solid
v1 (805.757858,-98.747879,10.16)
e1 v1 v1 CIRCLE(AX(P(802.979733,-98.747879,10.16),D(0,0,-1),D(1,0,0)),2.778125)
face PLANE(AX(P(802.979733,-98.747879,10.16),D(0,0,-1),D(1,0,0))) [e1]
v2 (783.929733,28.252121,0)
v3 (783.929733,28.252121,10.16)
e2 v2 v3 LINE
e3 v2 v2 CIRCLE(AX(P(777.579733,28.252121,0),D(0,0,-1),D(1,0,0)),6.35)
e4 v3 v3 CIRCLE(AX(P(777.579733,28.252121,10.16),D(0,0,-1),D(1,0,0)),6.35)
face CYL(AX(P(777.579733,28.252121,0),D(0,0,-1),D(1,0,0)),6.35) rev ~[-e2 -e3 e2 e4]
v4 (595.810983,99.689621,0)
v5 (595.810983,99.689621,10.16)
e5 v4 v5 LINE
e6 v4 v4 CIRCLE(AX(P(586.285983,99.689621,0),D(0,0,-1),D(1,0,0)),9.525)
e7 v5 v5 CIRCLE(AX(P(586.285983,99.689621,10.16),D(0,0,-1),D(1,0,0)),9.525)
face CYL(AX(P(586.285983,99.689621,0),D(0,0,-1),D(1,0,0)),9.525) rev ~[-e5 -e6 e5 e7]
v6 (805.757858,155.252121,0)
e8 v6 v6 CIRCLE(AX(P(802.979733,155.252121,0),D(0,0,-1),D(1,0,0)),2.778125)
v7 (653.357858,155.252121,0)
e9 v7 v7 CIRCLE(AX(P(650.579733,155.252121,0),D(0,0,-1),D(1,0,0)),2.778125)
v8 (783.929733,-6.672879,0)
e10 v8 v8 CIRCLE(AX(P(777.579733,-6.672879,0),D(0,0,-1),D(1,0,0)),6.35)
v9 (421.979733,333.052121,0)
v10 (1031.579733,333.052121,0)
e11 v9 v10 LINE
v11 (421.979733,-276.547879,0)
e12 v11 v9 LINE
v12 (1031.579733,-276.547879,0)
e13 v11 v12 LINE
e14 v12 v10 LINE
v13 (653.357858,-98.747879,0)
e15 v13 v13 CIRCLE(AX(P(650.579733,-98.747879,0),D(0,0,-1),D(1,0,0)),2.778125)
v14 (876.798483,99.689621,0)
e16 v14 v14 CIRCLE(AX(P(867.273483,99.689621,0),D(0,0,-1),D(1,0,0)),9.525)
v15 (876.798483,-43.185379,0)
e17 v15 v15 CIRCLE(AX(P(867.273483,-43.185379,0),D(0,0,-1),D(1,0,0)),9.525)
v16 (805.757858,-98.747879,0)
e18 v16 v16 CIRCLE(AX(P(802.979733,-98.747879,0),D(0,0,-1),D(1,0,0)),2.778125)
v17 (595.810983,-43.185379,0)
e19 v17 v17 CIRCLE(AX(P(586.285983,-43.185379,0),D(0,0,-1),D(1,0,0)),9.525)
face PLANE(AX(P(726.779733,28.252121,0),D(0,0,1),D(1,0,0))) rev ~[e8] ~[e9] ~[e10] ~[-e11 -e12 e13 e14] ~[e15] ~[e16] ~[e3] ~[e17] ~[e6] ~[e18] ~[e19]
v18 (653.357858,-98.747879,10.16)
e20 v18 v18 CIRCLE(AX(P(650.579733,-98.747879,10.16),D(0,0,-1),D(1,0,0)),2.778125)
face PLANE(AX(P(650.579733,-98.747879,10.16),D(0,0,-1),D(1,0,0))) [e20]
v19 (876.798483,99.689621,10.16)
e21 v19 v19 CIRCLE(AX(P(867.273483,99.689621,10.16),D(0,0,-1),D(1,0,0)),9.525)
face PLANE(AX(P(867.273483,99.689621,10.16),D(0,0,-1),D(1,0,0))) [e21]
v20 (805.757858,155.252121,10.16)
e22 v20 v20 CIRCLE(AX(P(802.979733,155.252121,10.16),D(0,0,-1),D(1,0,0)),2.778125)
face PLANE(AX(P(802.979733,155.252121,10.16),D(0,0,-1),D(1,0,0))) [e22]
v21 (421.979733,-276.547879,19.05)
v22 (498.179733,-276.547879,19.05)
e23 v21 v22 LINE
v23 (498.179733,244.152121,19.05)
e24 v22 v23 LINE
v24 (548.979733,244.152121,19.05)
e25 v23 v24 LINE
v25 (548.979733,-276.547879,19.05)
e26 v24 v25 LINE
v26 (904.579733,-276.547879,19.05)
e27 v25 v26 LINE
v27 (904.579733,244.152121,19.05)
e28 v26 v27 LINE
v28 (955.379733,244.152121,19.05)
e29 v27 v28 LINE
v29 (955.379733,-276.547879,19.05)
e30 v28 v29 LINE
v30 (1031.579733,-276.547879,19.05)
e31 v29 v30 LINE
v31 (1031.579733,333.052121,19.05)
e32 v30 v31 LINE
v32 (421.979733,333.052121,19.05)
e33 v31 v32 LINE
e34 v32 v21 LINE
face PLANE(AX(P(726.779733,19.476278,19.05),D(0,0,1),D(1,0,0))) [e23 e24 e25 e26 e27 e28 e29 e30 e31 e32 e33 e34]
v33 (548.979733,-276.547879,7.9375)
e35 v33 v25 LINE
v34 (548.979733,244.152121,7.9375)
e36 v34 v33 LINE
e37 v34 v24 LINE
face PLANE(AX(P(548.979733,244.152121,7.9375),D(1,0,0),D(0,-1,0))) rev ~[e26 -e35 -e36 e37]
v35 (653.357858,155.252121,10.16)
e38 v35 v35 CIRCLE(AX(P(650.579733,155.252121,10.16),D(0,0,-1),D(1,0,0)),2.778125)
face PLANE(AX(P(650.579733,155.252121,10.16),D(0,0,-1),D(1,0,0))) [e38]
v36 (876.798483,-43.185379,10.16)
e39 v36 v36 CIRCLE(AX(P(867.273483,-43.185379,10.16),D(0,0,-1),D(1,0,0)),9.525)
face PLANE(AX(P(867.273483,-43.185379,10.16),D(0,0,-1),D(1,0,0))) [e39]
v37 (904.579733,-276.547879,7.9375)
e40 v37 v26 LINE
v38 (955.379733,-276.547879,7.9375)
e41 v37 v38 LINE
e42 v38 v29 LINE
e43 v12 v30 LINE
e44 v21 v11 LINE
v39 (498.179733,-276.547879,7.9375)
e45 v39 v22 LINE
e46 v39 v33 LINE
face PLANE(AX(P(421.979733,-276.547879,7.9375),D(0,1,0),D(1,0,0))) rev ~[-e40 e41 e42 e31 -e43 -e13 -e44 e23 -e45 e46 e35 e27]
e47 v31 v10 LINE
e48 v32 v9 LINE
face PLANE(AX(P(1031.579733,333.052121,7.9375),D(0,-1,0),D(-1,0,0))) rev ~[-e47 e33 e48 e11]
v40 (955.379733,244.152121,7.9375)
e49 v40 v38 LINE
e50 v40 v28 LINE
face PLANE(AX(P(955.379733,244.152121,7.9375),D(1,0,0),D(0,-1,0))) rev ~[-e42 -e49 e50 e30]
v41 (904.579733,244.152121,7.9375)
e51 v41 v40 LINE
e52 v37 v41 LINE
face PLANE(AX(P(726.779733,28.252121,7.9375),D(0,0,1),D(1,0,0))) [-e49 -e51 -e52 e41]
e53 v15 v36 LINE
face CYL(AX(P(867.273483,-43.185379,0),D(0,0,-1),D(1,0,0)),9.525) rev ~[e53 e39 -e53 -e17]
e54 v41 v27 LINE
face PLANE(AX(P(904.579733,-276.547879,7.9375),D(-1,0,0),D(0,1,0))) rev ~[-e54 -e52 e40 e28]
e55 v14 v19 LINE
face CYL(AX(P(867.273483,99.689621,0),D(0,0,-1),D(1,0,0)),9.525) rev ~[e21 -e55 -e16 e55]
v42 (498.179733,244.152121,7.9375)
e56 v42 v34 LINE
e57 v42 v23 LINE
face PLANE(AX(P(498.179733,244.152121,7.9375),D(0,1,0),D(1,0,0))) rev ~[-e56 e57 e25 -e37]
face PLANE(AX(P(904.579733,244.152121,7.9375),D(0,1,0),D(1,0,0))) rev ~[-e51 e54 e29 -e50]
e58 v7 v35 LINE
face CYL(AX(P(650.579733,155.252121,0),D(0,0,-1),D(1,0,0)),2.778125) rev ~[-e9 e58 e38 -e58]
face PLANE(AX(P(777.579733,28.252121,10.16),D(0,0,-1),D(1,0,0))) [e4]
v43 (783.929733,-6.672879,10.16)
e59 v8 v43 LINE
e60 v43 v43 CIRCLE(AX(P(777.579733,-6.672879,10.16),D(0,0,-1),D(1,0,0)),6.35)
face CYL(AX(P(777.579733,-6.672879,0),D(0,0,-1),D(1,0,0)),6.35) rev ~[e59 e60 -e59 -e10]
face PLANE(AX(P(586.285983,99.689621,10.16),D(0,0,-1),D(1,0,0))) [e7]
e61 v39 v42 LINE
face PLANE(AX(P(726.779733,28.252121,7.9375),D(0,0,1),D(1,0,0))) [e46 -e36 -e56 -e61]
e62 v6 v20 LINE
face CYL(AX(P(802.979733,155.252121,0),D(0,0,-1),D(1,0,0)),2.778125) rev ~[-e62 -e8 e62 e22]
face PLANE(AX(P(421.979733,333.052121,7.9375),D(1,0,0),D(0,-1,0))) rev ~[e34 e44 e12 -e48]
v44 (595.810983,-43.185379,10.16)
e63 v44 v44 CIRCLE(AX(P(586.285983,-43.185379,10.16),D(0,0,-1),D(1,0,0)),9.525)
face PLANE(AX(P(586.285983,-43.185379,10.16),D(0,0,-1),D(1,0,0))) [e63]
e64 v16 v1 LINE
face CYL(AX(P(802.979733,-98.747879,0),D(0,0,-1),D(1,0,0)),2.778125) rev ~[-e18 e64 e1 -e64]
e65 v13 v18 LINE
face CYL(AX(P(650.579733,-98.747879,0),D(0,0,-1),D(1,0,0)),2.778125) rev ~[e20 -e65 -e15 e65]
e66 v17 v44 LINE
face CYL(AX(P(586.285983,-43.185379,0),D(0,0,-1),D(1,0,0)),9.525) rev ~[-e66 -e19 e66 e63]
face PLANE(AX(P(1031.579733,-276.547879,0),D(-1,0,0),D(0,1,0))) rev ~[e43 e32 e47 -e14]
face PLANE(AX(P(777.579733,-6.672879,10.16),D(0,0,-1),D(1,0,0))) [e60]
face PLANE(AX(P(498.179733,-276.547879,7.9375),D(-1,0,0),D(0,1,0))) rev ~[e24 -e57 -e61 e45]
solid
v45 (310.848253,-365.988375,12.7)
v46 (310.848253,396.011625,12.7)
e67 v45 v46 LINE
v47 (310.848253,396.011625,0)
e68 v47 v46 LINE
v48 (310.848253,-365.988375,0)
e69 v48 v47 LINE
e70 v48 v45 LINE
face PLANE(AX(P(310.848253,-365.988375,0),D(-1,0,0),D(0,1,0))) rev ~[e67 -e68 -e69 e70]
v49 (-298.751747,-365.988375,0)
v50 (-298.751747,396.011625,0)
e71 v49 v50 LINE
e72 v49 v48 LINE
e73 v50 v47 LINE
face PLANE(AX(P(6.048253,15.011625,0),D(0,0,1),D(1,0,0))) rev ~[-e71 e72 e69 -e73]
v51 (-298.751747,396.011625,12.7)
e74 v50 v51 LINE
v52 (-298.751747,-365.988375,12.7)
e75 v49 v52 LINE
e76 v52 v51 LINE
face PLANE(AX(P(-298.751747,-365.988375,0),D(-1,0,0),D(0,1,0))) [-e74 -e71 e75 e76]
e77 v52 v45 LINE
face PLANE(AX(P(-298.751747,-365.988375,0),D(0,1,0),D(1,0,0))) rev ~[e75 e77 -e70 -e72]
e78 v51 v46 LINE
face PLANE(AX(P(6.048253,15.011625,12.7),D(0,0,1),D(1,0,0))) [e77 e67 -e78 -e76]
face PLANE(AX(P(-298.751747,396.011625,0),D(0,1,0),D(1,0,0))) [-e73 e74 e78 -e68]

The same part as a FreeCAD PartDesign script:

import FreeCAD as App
import Part
import Sketcher
Q = App.Units.Quantity

doc = App.newDocument("Part")
body = doc.addObject("PartDesign::Body", "Body")

# Sketch on XY plane
sketch1 = doc.addObject("Sketcher::SketchObject", "Sketch")
body.addObject(sketch1)
sketch1.AttachmentSupport = (doc.XY_Plane, [""])
sketch1.MapMode = "FlatFace"
sketch1.addGeometry([
    Part.LineSegment(App.Vector(-299, 396, 0), App.Vector(-299, -366, 0)),
    Part.LineSegment(App.Vector(-299, -366, 0), App.Vector(311, -366, 0)),
    Part.LineSegment(App.Vector(311, -366, 0), App.Vector(311, 396, 0)),
    Part.LineSegment(App.Vector(311, 396, 0), App.Vector(-299, 396, 0)),
], False)
sketch1.addConstraint([
    Sketcher.Constraint("Coincident", 0, 2, 1, 1),
    Sketcher.Constraint("Coincident", 1, 2, 2, 1),
    Sketcher.Constraint("Coincident", 2, 2, 3, 1),
    Sketcher.Constraint("Coincident", 3, 2, 0, 1),
    Sketcher.Constraint("Vertical", 0),
    Sketcher.Constraint("Horizontal", 1),
    Sketcher.Constraint("Vertical", 2),
    Sketcher.Constraint("Horizontal", 3),
    Sketcher.Constraint("DistanceX", 1, 1, 1, 2, Q("24 in")),
    Sketcher.Constraint("DistanceY", 0, 2, 0, 1, Q("30 in")),
    Sketcher.Constraint("DistanceX", 0, 2, -1, 1, Q("298.751747 mm")),
    Sketcher.Constraint("DistanceY", 0, 2, -1, 1, Q("365.988375 mm")),
])
pad1 = doc.addObject("PartDesign::Pad", "Pad")
body.addObject(pad1)
pad1.Profile = sketch1
pad1.Length = Q("0.5 in")
body2 = doc.addObject("PartDesign::Body", "Body001")

# Sketch on XY plane
sketch2 = doc.addObject("Sketcher::SketchObject", "Sketch001")
body2.addObject(sketch2)
sketch2.AttachmentSupport = (doc.getObject("XY_Plane001"), [""])
sketch2.MapMode = "FlatFace"
sketch2.addGeometry([
    Part.LineSegment(App.Vector(422, 333, 0), App.Vector(422, -277, 0)),
    Part.LineSegment(App.Vector(422, -277, 0), App.Vector(1032, -277, 0)),
    Part.LineSegment(App.Vector(1032, -277, 0), App.Vector(1032, 333, 0)),
    Part.LineSegment(App.Vector(1032, 333, 0), App.Vector(422, 333, 0)),
], False)
sketch2.addConstraint([
    Sketcher.Constraint("Coincident", 0, 2, 1, 1),
    Sketcher.Constraint("Coincident", 1, 2, 2, 1),
    Sketcher.Constraint("Coincident", 2, 2, 3, 1),
    Sketcher.Constraint("Coincident", 3, 2, 0, 1),
    Sketcher.Constraint("Vertical", 0),
    Sketcher.Constraint("Horizontal", 1),
    Sketcher.Constraint("Vertical", 2),
    Sketcher.Constraint("Horizontal", 3),
    Sketcher.Constraint("Equal", 3, 0),
    Sketcher.Constraint("DistanceX", 1, 1, 1, 2, Q("24 in")),
    Sketcher.Constraint("DistanceY", 0, 2, -1, 1, Q("276.547879 mm")),
    Sketcher.Constraint("DistanceX", -1, 1, 0, 2, Q("421.979733 mm")),
])
pad2 = doc.addObject("PartDesign::Pad", "Pad001")
body2.addObject(pad2)
pad2.Profile = sketch2
pad2.Length = Q("0.3125 in")

# Sketch on XY plane
sketch3 = doc.addObject("Sketcher::SketchObject", "Sketch002")
body2.addObject(sketch3)
sketch3.AttachmentSupport = (doc.getObject("XY_Plane001"), [""])
sketch3.MapMode = "FlatFace"
sketch3.AttachmentOffset = App.Placement(App.Vector(0, 0, 0.3125 * 25.4), App.Rotation())
sketch3.addGeometry([
    Part.LineSegment(App.Vector(422, -277, 0), App.Vector(498, -277, 0)),  # 0
    Part.LineSegment(App.Vector(498, -277, 0), App.Vector(498, 244, 0)),  # 1
    Part.LineSegment(App.Vector(498, 244, 0), App.Vector(549, 244, 0)),  # 2
    Part.LineSegment(App.Vector(549, 244, 0), App.Vector(549, -277, 0)),  # 3
    Part.LineSegment(App.Vector(549, -277, 0), App.Vector(905, -277, 0)),  # 4
    Part.LineSegment(App.Vector(905, -277, 0), App.Vector(905, 244, 0)),  # 5
    Part.LineSegment(App.Vector(905, 244, 0), App.Vector(955, 244, 0)),  # 6
    Part.LineSegment(App.Vector(955, 244, 0), App.Vector(955, -277, 0)),  # 7
    Part.LineSegment(App.Vector(955, -277, 0), App.Vector(1032, -277, 0)),  # 8
    Part.LineSegment(App.Vector(1032, -277, 0), App.Vector(1032, 333, 0)),  # 9
    Part.LineSegment(App.Vector(1032, 333, 0), App.Vector(422, 333, 0)),  # 10
    Part.LineSegment(App.Vector(422, 333, 0), App.Vector(422, -277, 0)),  # 11
], False)
sketch3.addConstraint([
    Sketcher.Constraint("Coincident", 0, 2, 1, 1),
    Sketcher.Constraint("Coincident", 1, 2, 2, 1),
    Sketcher.Constraint("Coincident", 2, 2, 3, 1),
    Sketcher.Constraint("Coincident", 3, 2, 4, 1),
    Sketcher.Constraint("Coincident", 4, 2, 5, 1),
    Sketcher.Constraint("Coincident", 5, 2, 6, 1),
    Sketcher.Constraint("Coincident", 6, 2, 7, 1),
    Sketcher.Constraint("Coincident", 7, 2, 8, 1),
    Sketcher.Constraint("Coincident", 8, 2, 9, 1),
    Sketcher.Constraint("Coincident", 9, 2, 10, 1),
    Sketcher.Constraint("Coincident", 10, 2, 11, 1),
    Sketcher.Constraint("Coincident", 11, 2, 0, 1),
    Sketcher.Constraint("Horizontal", 0),
    Sketcher.Constraint("Vertical", 1),
    Sketcher.Constraint("Horizontal", 2),
    Sketcher.Constraint("Vertical", 3),
    Sketcher.Constraint("Horizontal", 4),
    Sketcher.Constraint("Vertical", 5),
    Sketcher.Constraint("Horizontal", 6),
    Sketcher.Constraint("Vertical", 7),
    Sketcher.Constraint("Horizontal", 8),
    Sketcher.Constraint("Vertical", 9),
    Sketcher.Constraint("Horizontal", 10),
    Sketcher.Constraint("Vertical", 11),
    Sketcher.Constraint("Horizontal", 0, 2, 3, 2),
    Sketcher.Constraint("Horizontal", 2, 2, 5, 2),
    Sketcher.Constraint("Horizontal", 4, 2, 7, 2),
    Sketcher.Constraint("Equal", 2, 6),
    Sketcher.Constraint("Equal", 0, 8),
    Sketcher.Constraint("Equal", 10, 9),
    Sketcher.Constraint("DistanceX", 0, 1, 0, 2, Q("3 in")),
    Sketcher.Constraint("DistanceX", 2, 1, 2, 2, Q("2 in")),
    Sketcher.Constraint("DistanceX", 4, 1, 4, 2, Q("14 in")),
    Sketcher.Constraint("DistanceY", 1, 1, 1, 2, Q("20.5 in")),
    Sketcher.Constraint("DistanceY", 0, 2, -1, 1, Q("276.547879 mm")),
    Sketcher.Constraint("DistanceX", -1, 1, 0, 2, Q("498.179733 mm")),
])
pad3 = doc.addObject("PartDesign::Pad", "Pad002")
body2.addObject(pad3)
pad3.Profile = sketch3
pad3.Length = Q("0.4375 in")

# Sketch on XY plane
sketch4 = doc.addObject("Sketcher::SketchObject", "Sketch003")
body2.addObject(sketch4)
sketch4.AttachmentSupport = (doc.getObject("XY_Plane001"), [""])
sketch4.MapMode = "FlatFace"
sketch4.addGeometry([
    Part.Circle(App.Vector(650.6, 155.3, 0), App.Vector(0, 0, 1), 2.8),  # 0
    Part.Circle(App.Vector(803, 155.3, 0), App.Vector(0, 0, 1), 2.8),  # 1
    Part.Circle(App.Vector(650.6, -98.7, 0), App.Vector(0, 0, 1), 2.8),  # 2
    Part.Circle(App.Vector(803, -98.7, 0), App.Vector(0, 0, 1), 2.8),  # 3
    Part.Circle(App.Vector(586.3, 99.7, 0), App.Vector(0, 0, 1), 9.5),  # 4
    Part.Circle(App.Vector(867.3, 99.7, 0), App.Vector(0, 0, 1), 9.5),  # 5
    Part.Circle(App.Vector(586.3, -43.2, 0), App.Vector(0, 0, 1), 9.5),  # 6
    Part.Circle(App.Vector(867.3, -43.2, 0), App.Vector(0, 0, 1), 9.5),  # 7
    Part.Circle(App.Vector(777.6, 28.3, 0), App.Vector(0, 0, 1), 6.3),  # 8
    Part.Circle(App.Vector(777.6, -6.7, 0), App.Vector(0, 0, 1), 6.3),  # 9
], False)
sketch4.addConstraint([
    Sketcher.Constraint("Equal", 0, 1),
    Sketcher.Constraint("Equal", 1, 2),
    Sketcher.Constraint("Equal", 2, 3),
    Sketcher.Constraint("Equal", 4, 5),
    Sketcher.Constraint("Equal", 5, 6),
    Sketcher.Constraint("Equal", 6, 7),
    Sketcher.Constraint("Equal", 8, 9),
    Sketcher.Constraint("Horizontal", 0, 3, 1, 3),
    Sketcher.Constraint("Horizontal", 2, 3, 3, 3),
    Sketcher.Constraint("Horizontal", 4, 3, 5, 3),
    Sketcher.Constraint("Horizontal", 6, 3, 7, 3),
    Sketcher.Constraint("Vertical", 0, 3, 2, 3),
    Sketcher.Constraint("Vertical", 1, 3, 3, 3),
    Sketcher.Constraint("Vertical", 4, 3, 6, 3),
    Sketcher.Constraint("Vertical", 5, 3, 7, 3),
    Sketcher.Constraint("Vertical", 8, 3, 9, 3),
    Sketcher.Constraint("Diameter", 8, Q("0.5 in")),
    Sketcher.Constraint("Diameter", 4, Q("0.75 in")),
    Sketcher.Constraint("Diameter", 0, Q("0.21875 in")),
    Sketcher.Constraint("DistanceX", 0, 3, 1, 3, Q("6 in")),
    Sketcher.Constraint("DistanceY", 2, 3, 0, 3, Q("10 in")),
    Sketcher.Constraint("DistanceX", 8, 3, 1, 3, Q("1 in")),
    Sketcher.Constraint("DistanceY", 8, 3, 1, 3, Q("5 in")),
    Sketcher.Constraint("DistanceX", 4, 3, 0, 3, Q("2.53125 in")),
    Sketcher.Constraint("DistanceY", 4, 3, 0, 3, Q("2.1875 in")),
    Sketcher.Constraint("DistanceX", 1, 3, 5, 3, Q("2.53125 in")),
    Sketcher.Constraint("DistanceY", 2, 3, 6, 3, Q("2.1875 in")),
    Sketcher.Constraint("DistanceY", 9, 3, 8, 3, Q("1.375 in")),
    Sketcher.Constraint("DistanceY", -1, 1, 0, 3, Q("155.252121 mm")),
    Sketcher.Constraint("DistanceX", -1, 1, 0, 3, Q("650.579733 mm")),
])
pocket1 = doc.addObject("PartDesign::Pocket", "Pocket")
body2.addObject(pocket1)
pocket1.Profile = sketch4
pocket1.Length = Q("0.4 in")
pocket1.Reversed = True

doc.recompute()
